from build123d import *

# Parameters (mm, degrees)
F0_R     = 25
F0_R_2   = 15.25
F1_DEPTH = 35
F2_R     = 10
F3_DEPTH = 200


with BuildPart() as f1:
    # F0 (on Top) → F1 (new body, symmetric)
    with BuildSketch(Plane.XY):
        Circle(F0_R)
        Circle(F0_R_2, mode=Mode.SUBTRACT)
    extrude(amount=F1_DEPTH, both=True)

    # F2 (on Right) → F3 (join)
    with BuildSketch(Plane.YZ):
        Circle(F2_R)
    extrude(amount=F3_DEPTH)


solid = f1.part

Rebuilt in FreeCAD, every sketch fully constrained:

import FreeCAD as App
import Part
import Sketcher

V = App.Vector

doc = App.newDocument("Part")
body = doc.addObject("PartDesign::Body", "Body")

# Sketch on XY plane
sketch1 = body.newObject("Sketcher::SketchObject", "Sketch")
sketch1.AttachmentSupport = (doc.getObject("XY_Plane"), [""])
sketch1.MapMode = "FlatFace"
sketch1.addGeometry(Part.Circle(V(0, 0, 0), V(0, 0, 1), 25), False)
sketch1.addGeometry(Part.Circle(V(0, 0, 0), V(0, 0, 1), 15), False)
sketch1.addConstraint(Sketcher.Constraint("Coincident", 0, 3, -1, 1))
sketch1.addConstraint(Sketcher.Constraint("Coincident", 1, 3, -1, 1))
sketch1.addConstraint(Sketcher.Constraint("Diameter", 0, 50.0))
sketch1.addConstraint(Sketcher.Constraint("Diameter", 1, 30.5))
pad1 = body.newObject("PartDesign::Pad", "Pad")
pad1.Profile = sketch1
pad1.Length = 70
pad1.Midplane = True

# Sketch on YZ plane
sketch2 = body.newObject("Sketcher::SketchObject", "Sketch001")
sketch2.AttachmentSupport = (doc.getObject("YZ_Plane"), [""])
sketch2.MapMode = "FlatFace"
sketch2.addGeometry(Part.Circle(V(0, 0, 0), V(0, 0, 1), 10), False)
sketch2.addConstraint(Sketcher.Constraint("Coincident", 0, 3, -1, 1))
sketch2.addConstraint(Sketcher.Constraint("Diameter", 0, 20.0))
pad2 = body.newObject("PartDesign::Pad", "Pad001")
pad2.Profile = sketch2
pad2.Length = 200

doc.recompute()
